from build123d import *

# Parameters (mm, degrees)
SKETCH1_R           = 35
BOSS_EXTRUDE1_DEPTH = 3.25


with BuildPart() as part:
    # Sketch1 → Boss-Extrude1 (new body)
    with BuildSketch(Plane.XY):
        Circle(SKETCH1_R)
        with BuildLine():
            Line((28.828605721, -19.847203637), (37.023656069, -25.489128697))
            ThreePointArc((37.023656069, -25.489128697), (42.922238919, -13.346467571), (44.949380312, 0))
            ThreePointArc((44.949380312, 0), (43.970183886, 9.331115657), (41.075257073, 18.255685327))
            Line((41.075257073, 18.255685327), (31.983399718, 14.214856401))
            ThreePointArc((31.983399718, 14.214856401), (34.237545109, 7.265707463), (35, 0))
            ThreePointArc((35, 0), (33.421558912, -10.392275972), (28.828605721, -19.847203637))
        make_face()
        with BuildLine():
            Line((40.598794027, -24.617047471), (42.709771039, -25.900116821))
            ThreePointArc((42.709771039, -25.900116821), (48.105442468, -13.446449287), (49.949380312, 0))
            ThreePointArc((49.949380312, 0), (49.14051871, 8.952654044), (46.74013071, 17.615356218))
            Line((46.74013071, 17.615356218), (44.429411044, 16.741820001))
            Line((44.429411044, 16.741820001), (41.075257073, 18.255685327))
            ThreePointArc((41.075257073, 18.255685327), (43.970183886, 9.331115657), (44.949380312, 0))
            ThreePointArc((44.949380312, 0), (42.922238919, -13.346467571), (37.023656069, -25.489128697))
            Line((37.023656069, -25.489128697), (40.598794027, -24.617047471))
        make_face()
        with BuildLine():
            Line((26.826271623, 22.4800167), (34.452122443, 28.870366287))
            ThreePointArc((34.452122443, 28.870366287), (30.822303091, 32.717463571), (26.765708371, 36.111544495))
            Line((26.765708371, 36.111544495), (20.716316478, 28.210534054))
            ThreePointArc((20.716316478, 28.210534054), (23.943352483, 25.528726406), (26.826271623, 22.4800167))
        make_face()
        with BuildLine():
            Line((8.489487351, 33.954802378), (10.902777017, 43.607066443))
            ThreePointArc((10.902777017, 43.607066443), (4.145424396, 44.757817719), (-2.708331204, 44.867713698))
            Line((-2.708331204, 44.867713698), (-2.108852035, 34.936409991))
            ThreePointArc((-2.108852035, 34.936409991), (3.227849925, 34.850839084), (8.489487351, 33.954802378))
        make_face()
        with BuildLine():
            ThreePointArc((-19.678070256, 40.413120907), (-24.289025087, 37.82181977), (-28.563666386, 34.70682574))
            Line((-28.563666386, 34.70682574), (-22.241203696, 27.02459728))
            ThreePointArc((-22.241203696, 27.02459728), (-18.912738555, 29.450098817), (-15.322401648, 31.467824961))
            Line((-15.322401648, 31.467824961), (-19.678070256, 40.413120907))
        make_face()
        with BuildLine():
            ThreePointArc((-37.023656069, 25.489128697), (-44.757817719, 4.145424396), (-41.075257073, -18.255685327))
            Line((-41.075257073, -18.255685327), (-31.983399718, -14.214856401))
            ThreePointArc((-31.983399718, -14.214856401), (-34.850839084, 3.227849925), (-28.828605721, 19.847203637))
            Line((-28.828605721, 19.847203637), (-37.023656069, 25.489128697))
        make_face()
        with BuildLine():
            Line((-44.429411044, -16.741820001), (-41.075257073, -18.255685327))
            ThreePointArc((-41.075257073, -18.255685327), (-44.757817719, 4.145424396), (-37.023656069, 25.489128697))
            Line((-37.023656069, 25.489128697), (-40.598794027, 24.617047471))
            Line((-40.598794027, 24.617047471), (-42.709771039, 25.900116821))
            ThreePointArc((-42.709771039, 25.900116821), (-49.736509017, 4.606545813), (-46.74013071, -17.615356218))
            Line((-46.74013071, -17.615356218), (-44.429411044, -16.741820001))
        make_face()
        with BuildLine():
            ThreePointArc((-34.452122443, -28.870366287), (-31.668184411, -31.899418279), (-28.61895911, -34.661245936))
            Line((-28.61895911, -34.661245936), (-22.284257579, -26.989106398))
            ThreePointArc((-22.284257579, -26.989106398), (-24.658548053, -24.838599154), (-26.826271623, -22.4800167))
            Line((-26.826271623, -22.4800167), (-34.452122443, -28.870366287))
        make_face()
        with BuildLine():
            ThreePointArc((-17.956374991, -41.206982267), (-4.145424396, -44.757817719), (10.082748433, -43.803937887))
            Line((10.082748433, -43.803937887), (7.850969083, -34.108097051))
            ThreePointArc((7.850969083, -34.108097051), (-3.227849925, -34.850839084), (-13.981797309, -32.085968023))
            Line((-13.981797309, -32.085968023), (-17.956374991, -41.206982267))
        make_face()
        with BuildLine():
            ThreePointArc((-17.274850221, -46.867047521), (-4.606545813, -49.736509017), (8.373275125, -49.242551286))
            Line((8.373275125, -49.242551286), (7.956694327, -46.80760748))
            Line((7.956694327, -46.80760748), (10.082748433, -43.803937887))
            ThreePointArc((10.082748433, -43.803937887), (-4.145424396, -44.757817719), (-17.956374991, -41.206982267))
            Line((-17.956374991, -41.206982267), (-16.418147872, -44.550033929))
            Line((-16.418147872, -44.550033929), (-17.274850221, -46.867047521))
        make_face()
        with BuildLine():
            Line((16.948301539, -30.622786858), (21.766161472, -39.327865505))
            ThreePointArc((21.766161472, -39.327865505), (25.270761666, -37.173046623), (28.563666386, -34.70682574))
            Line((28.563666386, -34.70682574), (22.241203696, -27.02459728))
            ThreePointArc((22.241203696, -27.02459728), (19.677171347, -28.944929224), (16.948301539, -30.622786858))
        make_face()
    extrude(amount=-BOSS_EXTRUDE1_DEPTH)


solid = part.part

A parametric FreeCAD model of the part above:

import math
import FreeCAD as App
import Part
import Sketcher
from FreeCAD import Vector

doc = App.newDocument("Part")
body = doc.addObject("PartDesign::Body", "Body")

# Sketch on XY plane
sketch1 = doc.addObject("Sketcher::SketchObject", "Sketch")
body.addObject(sketch1)
sketch1.AttachmentSupport = (doc.XY_Plane, [""])
sketch1.MapMode = "FlatFace"
sketch1.addGeometry(Part.ArcOfCircle(Part.Circle(Vector(0, 0, 0), Vector(0, 0, 1), 35), math.radians(23.962507), math.radians(39.962507)), False)
sketch1.addGeometry(Part.LineSegment(Vector(26.826272, 22.480017, 0), Vector(34.452122, 28.870366, 0)), False)
sketch1.addGeometry(Part.ArcOfCircle(Part.Circle(Vector(0, 0, 0), Vector(0, 0, 1), 44.94938), math.radians(39.962507), math.radians(53.45433)), False)
sketch1.addGeometry(Part.LineSegment(Vector(26.765708, 36.111544, 0), Vector(20.716316, 28.210534, 0)), False)
sketch1.addGeometry(Part.ArcOfCircle(Part.Circle(Vector(0, 0, 0), Vector(0, 0, 1), 35), math.radians(53.708419), math.radians(75.962507)), False)
sketch1.addGeometry(Part.LineSegment(Vector(8.489487, 33.954802, 0), Vector(10.902777, 43.607066, 0)), False)
sketch1.addGeometry(Part.ArcOfCircle(Part.Circle(Vector(0, 0, 0), Vector(0, 0, 1), 44.94938), math.radians(75.962507), math.radians(93.45433)), False)
sketch1.addGeometry(Part.LineSegment(Vector(-2.708331, 44.867714, 0), Vector(-2.108852, 34.93641, 0)), False)
sketch1.addGeometry(Part.ArcOfCircle(Part.Circle(Vector(0, 0, 0), Vector(0, 0, 1), 35), math.radians(93.45433), math.radians(115.962507)), False)
sketch1.addGeometry(Part.LineSegment(Vector(-15.322402, 31.467825, 0), Vector(-19.67807, 40.413121, 0)), False)
sketch1.addGeometry(Part.ArcOfCircle(Part.Circle(Vector(0, 0, 0), Vector(0, 0, 1), 44.94938), math.radians(115.962507), math.radians(129.45433)), False)
sketch1.addGeometry(Part.LineSegment(Vector(-28.563666, 34.706826, 0), Vector(-22.241204, 27.024597, 0)), False)
sketch1.addGeometry(Part.ArcOfCircle(Part.Circle(Vector(0, 0, 0), Vector(0, 0, 1), 35), math.radians(129.45433), math.radians(145.45433)), False)
sketch1.addGeometry(Part.LineSegment(Vector(-28.828606, 19.847204, 0), Vector(-37.023656, 25.489129, 0)), False)
sketch1.addGeometry(Part.LineSegment(Vector(-37.023656, 25.489129, 0), Vector(-40.598794, 24.617047, 0)), False)
sketch1.addGeometry(Part.LineSegment(Vector(-40.598794, 24.617047, 0), Vector(-42.709771, 25.900117, 0)), False)
sketch1.addGeometry(Part.ArcOfCircle(Part.Circle(Vector(0, 0, 0), Vector(0, 0, 1), 49.94938), math.radians(148.766483), math.radians(200.650354)), False)
sketch1.addGeometry(Part.LineSegment(Vector(-46.740131, -17.615356, 0), Vector(-44.429411, -16.74182, 0)), False)
sketch1.addGeometry(Part.LineSegment(Vector(-44.429411, -16.74182, 0), Vector(-41.075257, -18.255685, 0)), False)
sketch1.addGeometry(Part.LineSegment(Vector(-41.075257, -18.255685, 0), Vector(-31.9834, -14.214856, 0)), False)
sketch1.addGeometry(Part.ArcOfCircle(Part.Circle(Vector(0, 0, 0), Vector(0, 0, 1), 35), math.radians(-156.037493), math.radians(-140.037493)), False)
sketch1.addGeometry(Part.LineSegment(Vector(-26.826272, -22.480017, 0), Vector(-34.452122, -28.870366, 0)), False)
sketch1.addGeometry(Part.ArcOfCircle(Part.Circle(Vector(0, 0, 0), Vector(0, 0, 1), 44.94938), math.radians(-140.037493), math.radians(-129.54567)), False)
sketch1.addGeometry(Part.LineSegment(Vector(-28.618959, -34.661246, 0), Vector(-22.284258, -26.989106, 0)), False)
sketch1.addGeometry(Part.ArcOfCircle(Part.Circle(Vector(0, 0, 0), Vector(0, 0, 1), 35), math.radians(-129.54567), math.radians(-113.54567)), False)
sketch1.addGeometry(Part.LineSegment(Vector(-13.981797, -32.085968, 0), Vector(-17.956375, -41.206982, 0)), False)
sketch1.addGeometry(Part.LineSegment(Vector(-17.956375, -41.206982, 0), Vector(-16.418148, -44.550034, 0)), False)
sketch1.addGeometry(Part.LineSegment(Vector(-16.418148, -44.550034, 0), Vector(-17.27485, -46.867048, 0)), False)
sketch1.addGeometry(Part.ArcOfCircle(Part.Circle(Vector(0, 0, 0), Vector(0, 0, 1), 49.94938), math.radians(-110.233517), math.radians(-80.349646)), False)
sketch1.addGeometry(Part.LineSegment(Vector(8.373275, -49.242551, 0), Vector(7.956694, -46.807607, 0)), False)
sketch1.addGeometry(Part.LineSegment(Vector(7.956694, -46.807607, 0), Vector(10.082748, -43.803938, 0)), False)
sketch1.addGeometry(Part.LineSegment(Vector(10.082748, -43.803938, 0), Vector(7.850969, -34.108097, 0)), False)
sketch1.addGeometry(Part.ArcOfCircle(Part.Circle(Vector(0, 0, 0), Vector(0, 0, 1), 35), math.radians(-77.037493), math.radians(-61.037493)), False)
sketch1.addGeometry(Part.LineSegment(Vector(16.948302, -30.622787, 0), Vector(21.766161, -39.327866, 0)), False)
sketch1.addGeometry(Part.ArcOfCircle(Part.Circle(Vector(0, 0, 0), Vector(0, 0, 1), 44.94938), math.radians(-61.037493), math.radians(-50.54567)), False)
sketch1.addGeometry(Part.LineSegment(Vector(28.563666, -34.706826, 0), Vector(22.241204, -27.024597, 0)), False)
sketch1.addGeometry(Part.ArcOfCircle(Part.Circle(Vector(0, 0, 0), Vector(0, 0, 1), 35), math.radians(-50.54567), math.radians(-34.54567)), False)
sketch1.addGeometry(Part.LineSegment(Vector(28.828606, -19.847204, 0), Vector(37.023656, -25.489129, 0)), False)
sketch1.addGeometry(Part.LineSegment(Vector(37.023656, -25.489129, 0), Vector(40.598794, -24.617047, 0)), False)
sketch1.addGeometry(Part.LineSegment(Vector(40.598794, -24.617047, 0), Vector(42.709771, -25.900117, 0)), False)
sketch1.addGeometry(Part.ArcOfCircle(Part.Circle(Vector(0, 0, 0), Vector(0, 0, 1), 49.94938), math.radians(-31.233517), math.radians(0)), False)
sketch1.addGeometry(Part.ArcOfCircle(Part.Circle(Vector(0, 0, 0), Vector(0, 0, 1), 49.94938), math.radians(0), math.radians(20.650354)), False)
sketch1.addGeometry(Part.LineSegment(Vector(46.740131, 17.615356, 0), Vector(44.429411, 16.74182, 0)), False)
sketch1.addGeometry(Part.LineSegment(Vector(44.429411, 16.74182, 0), Vector(41.075257, 18.255685, 0)), False)
sketch1.addGeometry(Part.LineSegment(Vector(41.075257, 18.255685, 0), Vector(31.9834, 14.214856, 0)), False)
sketch1.addConstraint(Sketcher.Constraint("Coincident", 0, 2, 1, 1))
sketch1.addConstraint(Sketcher.Constraint("Coincident", 1, 2, 2, 1))
sketch1.addConstraint(Sketcher.Constraint("Coincident", 2, 2, 3, 1))
sketch1.addConstraint(Sketcher.Constraint("Coincident", 3, 2, 4, 1))
sketch1.addConstraint(Sketcher.Constraint("Coincident", 4, 2, 5, 1))
sketch1.addConstraint(Sketcher.Constraint("Coincident", 5, 2, 6, 1))
sketch1.addConstraint(Sketcher.Constraint("Coincident", 6, 2, 7, 1))
sketch1.addConstraint(Sketcher.Constraint("Coincident", 7, 2, 8, 1))
sketch1.addConstraint(Sketcher.Constraint("Coincident", 8, 2, 9, 1))
sketch1.addConstraint(Sketcher.Constraint("Coincident", 9, 2, 10, 1))
sketch1.addConstraint(Sketcher.Constraint("Coincident", 10, 2, 11, 1))
sketch1.addConstraint(Sketcher.Constraint("Coincident", 11, 2, 12, 1))
sketch1.addConstraint(Sketcher.Constraint("Coincident", 12, 2, 13, 1))
sketch1.addConstraint(Sketcher.Constraint("Coincident", 13, 2, 14, 1))
sketch1.addConstraint(Sketcher.Constraint("Coincident", 14, 2, 15, 1))
sketch1.addConstraint(Sketcher.Constraint("Coincident", 15, 2, 16, 1))
sketch1.addConstraint(Sketcher.Constraint("Coincident", 16, 2, 17, 1))
sketch1.addConstraint(Sketcher.Constraint("Coincident", 17, 2, 18, 1))
sketch1.addConstraint(Sketcher.Constraint("Coincident", 18, 2, 19, 1))
sketch1.addConstraint(Sketcher.Constraint("Coincident", 19, 2, 20, 1))
sketch1.addConstraint(Sketcher.Constraint("Coincident", 20, 2, 21, 1))
sketch1.addConstraint(Sketcher.Constraint("Coincident", 21, 2, 22, 1))
sketch1.addConstraint(Sketcher.Constraint("Coincident", 22, 2, 23, 1))
sketch1.addConstraint(Sketcher.Constraint("Coincident", 23, 2, 24, 1))
sketch1.addConstraint(Sketcher.Constraint("Coincident", 24, 2, 25, 1))
sketch1.addConstraint(Sketcher.Constraint("Coincident", 25, 2, 26, 1))
sketch1.addConstraint(Sketcher.Constraint("Coincident", 26, 2, 27, 1))
sketch1.addConstraint(Sketcher.Constraint("Coincident", 27, 2, 28, 1))
sketch1.addConstraint(Sketcher.Constraint("Coincident", 28, 2, 29, 1))
sketch1.addConstraint(Sketcher.Constraint("Coincident", 29, 2, 30, 1))
sketch1.addConstraint(Sketcher.Constraint("Coincident", 30, 2, 31, 1))
sketch1.addConstraint(Sketcher.Constraint("Coincident", 31, 2, 32, 1))
sketch1.addConstraint(Sketcher.Constraint("Coincident", 32, 2, 33, 1))
sketch1.addConstraint(Sketcher.Constraint("Coincident", 33, 2, 34, 1))
sketch1.addConstraint(Sketcher.Constraint("Coincident", 34, 2, 35, 1))
sketch1.addConstraint(Sketcher.Constraint("Coincident", 35, 2, 36, 1))
sketch1.addConstraint(Sketcher.Constraint("Coincident", 36, 2, 37, 1))
sketch1.addConstraint(Sketcher.Constraint("Coincident", 37, 2, 38, 1))
sketch1.addConstraint(Sketcher.Constraint("Coincident", 38, 2, 39, 1))
sketch1.addConstraint(Sketcher.Constraint("Coincident", 39, 2, 40, 1))
sketch1.addConstraint(Sketcher.Constraint("Tangent", 40, 2, 41, 1))
sketch1.addConstraint(Sketcher.Constraint("Coincident", 41, 2, 42, 1))
sketch1.addConstraint(Sketcher.Constraint("Coincident", 42, 2, 43, 1))
sketch1.addConstraint(Sketcher.Constraint("Coincident", 43, 2, 44, 1))
sketch1.addConstraint(Sketcher.Constraint("Coincident", 44, 2, 0, 1))
sketch1.addConstraint(Sketcher.Constraint("Coincident", 0, 3, -1, 1))
sketch1.addConstraint(Sketcher.Constraint("Coincident", 2, 3, -1, 1))
sketch1.addConstraint(Sketcher.Constraint("Coincident", 4, 3, -1, 1))
sketch1.addConstraint(Sketcher.Constraint("Coincident", 6, 3, -1, 1))
sketch1.addConstraint(Sketcher.Constraint("Coincident", 8, 3, -1, 1))
sketch1.addConstraint(Sketcher.Constraint("Coincident", 10, 3, -1, 1))
sketch1.addConstraint(Sketcher.Constraint("Coincident", 12, 3, -1, 1))
sketch1.addConstraint(Sketcher.Constraint("Coincident", 16, 3, -1, 1))
sketch1.addConstraint(Sketcher.Constraint("Coincident", 20, 3, -1, 1))
sketch1.addConstraint(Sketcher.Constraint("Coincident", 22, 3, -1, 1))
sketch1.addConstraint(Sketcher.Constraint("Coincident", 24, 3, -1, 1))
sketch1.addConstraint(Sketcher.Constraint("Coincident", 28, 3, -1, 1))
sketch1.addConstraint(Sketcher.Constraint("Coincident", 32, 3, -1, 1))
sketch1.addConstraint(Sketcher.Constraint("Coincident", 34, 3, -1, 1))
sketch1.addConstraint(Sketcher.Constraint("Coincident", 36, 3, -1, 1))
sketch1.addConstraint(Sketcher.Constraint("Coincident", 40, 3, -1, 1))
sketch1.addConstraint(Sketcher.Constraint("Equal", 0, 4))
sketch1.addConstraint(Sketcher.Constraint("Equal", 2, 6))
sketch1.addConstraint(Sketcher.Constraint("Equal", 4, 8))
sketch1.addConstraint(Sketcher.Constraint("Equal", 6, 10))
sketch1.addConstraint(Sketcher.Constraint("Equal", 8, 12))
sketch1.addConstraint(Sketcher.Constraint("Equal", 12, 20))
sketch1.addConstraint(Sketcher.Constraint("Equal", 10, 22))
sketch1.addConstraint(Sketcher.Constraint("Equal", 20, 24))
sketch1.addConstraint(Sketcher.Constraint("Equal", 16, 28))
sketch1.addConstraint(Sketcher.Constraint("Equal", 24, 32))
sketch1.addConstraint(Sketcher.Constraint("Equal", 22, 34))
sketch1.addConstraint(Sketcher.Constraint("Equal", 32, 36))
sketch1.addConstraint(Sketcher.Constraint("Equal", 28, 40))
sketch1.addConstraint(Sketcher.Constraint("Equal", 40, 41))
sketch1.addConstraint(Sketcher.Constraint("Symmetric", 13, 2, 37, 2, -1, 1))
sketch1.addConstraint(Sketcher.Constraint("Symmetric", 14, 2, 38, 2, -1, 1))
sketch1.addConstraint(Sketcher.Constraint("Symmetric", 17, 2, 42, 2, -1, 1))
sketch1.addConstraint(Sketcher.Constraint("Symmetric", 18, 2, 43, 2, -1, 1))
sketch1.addConstraint(Sketcher.Constraint("PointOnObject", 40, 2, -1))
sketch1.addConstraint(Sketcher.Constraint("Parallel", 1, 21))
sketch1.addConstraint(Sketcher.Constraint("Parallel", 11, 35))
sketch1.addConstraint(Sketcher.Constraint("Parallel", 13, 37))
sketch1.addConstraint(Sketcher.Constraint("Parallel", 15, 39))
sketch1.addConstraint(Sketcher.Constraint("Parallel", 17, 42))
sketch1.addConstraint(Sketcher.Constraint("Parallel", 19, 44))
sketch1.addConstraint(Sketcher.Constraint("Equal", 11, 13))
sketch1.addConstraint(Sketcher.Constraint("Equal", 15, 17))
sketch1.addConstraint(Sketcher.Constraint("Equal", 14, 18))
sketch1.addConstraint(Sketcher.Constraint("Equal", 13, 19))
sketch1.addConstraint(Sketcher.Constraint("Equal", 23, 25))
sketch1.addConstraint(Sketcher.Constraint("Equal", 18, 26))
sketch1.addConstraint(Sketcher.Constraint("Equal", 17, 27))
sketch1.addConstraint(Sketcher.Constraint("Equal", 27, 29))
sketch1.addConstraint(Sketcher.Constraint("Equal", 26, 30))
sketch1.addConstraint(Sketcher.Constraint("Equal", 25, 31))
sketch1.addConstraint(Sketcher.Constraint("Radius", 0, 35.0))
sketch1.addConstraint(Sketcher.Constraint("Radius", 2, 44.94938))
sketch1.addConstraint(Sketcher.Constraint("Radius", 16, 49.94938))
sketch1.addConstraint(Sketcher.Constraint("DistanceX", 8, 2, -1, 1, 15.322402))
sketch1.addConstraint(Sketcher.Constraint("DistanceX", 19, 2, -1, 1, 31.9834))
sketch1.addConstraint(Sketcher.Constraint("DistanceX", -1, 1, 32, 2, 16.948302))
sketch1.addConstraint(Sketcher.Constraint("DistanceX", -1, 1, 0, 2, 26.826272))
sketch1.addConstraint(Sketcher.Constraint("DistanceX", -1, 1, 2, 2, 26.765708))
sketch1.addConstraint(Sketcher.Constraint("DistanceX", 6, 2, -1, 1, 2.708331))
sketch1.addConstraint(Sketcher.Constraint("DistanceY", -1, 1, 7, 2, 34.93641))
sketch1.addConstraint(Sketcher.Constraint("DistanceX", 9, 2, -1, 1, 19.67807))
sketch1.addConstraint(Sketcher.Constraint("DistanceY", -1, 1, 13, 2, 25.489129))
sketch1.addConstraint(Sketcher.Constraint("DistanceX", 15, 2, -1, 1, 42.709771))
sketch1.addConstraint(Sketcher.Constraint("DistanceX", 16, 2, -1, 1, 46.740131))
sketch1.addConstraint(Sketcher.Constraint("DistanceX", 17, 2, -1, 1, 44.429411))
sketch1.addConstraint(Sketcher.Constraint("DistanceY", 17, 2, -1, 1, 16.74182))
sketch1.addConstraint(Sketcher.Constraint("DistanceX", 20, 2, -1, 1, 26.826272))
sketch1.addConstraint(Sketcher.Constraint("DistanceX", 22, 2, -1, 1, 28.618959))
sketch1.addConstraint(Sketcher.Constraint("DistanceY", 24, 2, -1, 1, 32.085968))
sketch1.addConstraint(Sketcher.Constraint("DistanceX", 27, 2, -1, 1, 17.27485))
sketch1.addConstraint(Sketcher.Constraint("DistanceY", 28, 2, -1, 1, 49.242551))
sketch1.addConstraint(Sketcher.Constraint("DistanceX", -1, 1, 30, 2, 10.082748))
sketch1.addConstraint(Sketcher.Constraint("DistanceX", -1, 1, 31, 2, 7.850969))
sketch1.addConstraint(Sketcher.Constraint("DistanceX", -1, 1, 33, 2, 21.766161))
sketch1.addConstraint(Sketcher.Constraint("Distance", 3, 9.950935))
sketch1.addConstraint(Sketcher.Constraint("Distance", 14, 3.679964))
sketch1.addConstraint(Sketcher.Constraint("DistanceX", -1, 1, 1, 2, 34.452122))
sketch1.addConstraint(Sketcher.Constraint("DistanceX", -1, 1, 4, 2, 8.489487))
sketch1.addConstraint(Sketcher.Constraint("DistanceX", -1, 1, 5, 2, 10.902777))
sketch1.addConstraint(Sketcher.Constraint("DistanceX", 10, 2, -1, 1, 28.563666))
sketch1.addConstraint(Sketcher.Constraint("DistanceX", 11, 2, -1, 1, 22.241204))
sketch1.addConstraint(Sketcher.Constraint("DistanceX", 12, 2, -1, 1, 28.828606))
sketch1.addConstraint(Sketcher.Constraint("DistanceX", 23, 2, -1, 1, 22.284258))
sketch1.addConstraint(Sketcher.Constraint("DistanceX", 25, 2, -1, 1, 17.956375))
sketch1.addConstraint(Sketcher.Constraint("DistanceX", -1, 1, 34, 2, 28.563666))
pad1 = doc.addObject("PartDesign::Pad", "Pad")
body.addObject(pad1)
pad1.Profile = sketch1
pad1.Length = 3.25
pad1.Reversed = True

doc.recompute()
